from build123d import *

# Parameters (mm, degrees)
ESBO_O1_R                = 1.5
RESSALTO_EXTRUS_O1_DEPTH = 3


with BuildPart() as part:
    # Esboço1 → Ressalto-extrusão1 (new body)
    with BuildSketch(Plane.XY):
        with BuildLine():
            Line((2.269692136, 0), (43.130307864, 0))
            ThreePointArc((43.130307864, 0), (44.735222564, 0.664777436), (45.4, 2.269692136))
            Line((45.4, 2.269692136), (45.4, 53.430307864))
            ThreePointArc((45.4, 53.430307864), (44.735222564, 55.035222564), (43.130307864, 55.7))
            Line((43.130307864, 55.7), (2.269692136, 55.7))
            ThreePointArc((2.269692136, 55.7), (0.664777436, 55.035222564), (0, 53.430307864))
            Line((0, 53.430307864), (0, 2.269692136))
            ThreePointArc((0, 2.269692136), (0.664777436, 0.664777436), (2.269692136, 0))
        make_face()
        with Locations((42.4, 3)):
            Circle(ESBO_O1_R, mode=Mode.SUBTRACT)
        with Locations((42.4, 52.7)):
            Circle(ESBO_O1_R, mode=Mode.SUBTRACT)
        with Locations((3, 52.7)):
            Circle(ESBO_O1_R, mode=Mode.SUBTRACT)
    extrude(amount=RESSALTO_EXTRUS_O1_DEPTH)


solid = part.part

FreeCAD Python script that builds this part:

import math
import FreeCAD as App
import Part
import Sketcher

V = App.Vector
Q = App.Units.Quantity

doc = App.newDocument("Part")
params = doc.addObject("Spreadsheet::Sheet", "Params")
for row, (alias, value) in enumerate([
    ("sketch1_diameter", "3 mm"),
    ("pad1_length", "3 mm"),
], start=1):
    params.set(f"A{row}", alias)
    params.set(f"B{row}", "=" + value)
    params.setAlias(f"B{row}", alias)

body = doc.addObject("PartDesign::Body", "Body")

# Sketch on XY plane
sketch1 = body.newObject("Sketcher::SketchObject", "Sketch")
sketch1.AttachmentSupport = (doc.getObject("XY_Plane"), [""])
sketch1.MapMode = "FlatFace"
sketch1.addGeometry(Part.LineSegment(V(2.3, 0, 0), V(43.1, 0, 0)), False)
sketch1.addGeometry(Part.ArcOfCircle(Part.Circle(V(43.1, 2.3, 0), V(0, 0, 1), 2.3), math.radians(-90), math.radians(0)), False)
sketch1.addGeometry(Part.LineSegment(V(45.4, 2.3, 0), V(45.4, 53.4, 0)), False)
sketch1.addGeometry(Part.ArcOfCircle(Part.Circle(V(43.1, 53.4, 0), V(0, 0, 1), 2.3), math.radians(0), math.radians(90)), False)
sketch1.addGeometry(Part.LineSegment(V(43.1, 55.7, 0), V(2.3, 55.7, 0)), False)
sketch1.addGeometry(Part.ArcOfCircle(Part.Circle(V(2.3, 53.4, 0), V(0, 0, 1), 2.3), math.radians(90), math.radians(180)), False)
sketch1.addGeometry(Part.LineSegment(V(0, 53.4, 0), V(0, 2.3, 0)), False)
sketch1.addGeometry(Part.ArcOfCircle(Part.Circle(V(2.3, 2.3, 0), V(0, 0, 1), 2.3), math.radians(-180), math.radians(-90)), False)
sketch1.addGeometry(Part.Circle(V(42.4, 3, 0), V(0, 0, 1), 1.5), False)
sketch1.addGeometry(Part.Circle(V(3, 52.7, 0), V(0, 0, 1), 1.5), False)
sketch1.addGeometry(Part.Circle(V(42.4, 52.7, 0), V(0, 0, 1), 1.5), False)
sketch1.addConstraint(Sketcher.Constraint("Tangent", 0, 2, 1, 1))
sketch1.addConstraint(Sketcher.Constraint("Tangent", 1, 2, 2, 1))
sketch1.addConstraint(Sketcher.Constraint("Tangent", 2, 2, 3, 1))
sketch1.addConstraint(Sketcher.Constraint("Tangent", 3, 2, 4, 1))
sketch1.addConstraint(Sketcher.Constraint("Tangent", 4, 2, 5, 1))
sketch1.addConstraint(Sketcher.Constraint("Tangent", 5, 2, 6, 1))
sketch1.addConstraint(Sketcher.Constraint("Tangent", 6, 2, 7, 1))
sketch1.addConstraint(Sketcher.Constraint("Tangent", 7, 2, 0, 1))
sketch1.addConstraint(Sketcher.Constraint("Horizontal", 0))
sketch1.addConstraint(Sketcher.Constraint("Vertical", 2))
sketch1.addConstraint(Sketcher.Constraint("Horizontal", 4))
sketch1.addConstraint(Sketcher.Constraint("Vertical", 6))
sketch1.addConstraint(Sketcher.Constraint("Equal", 1, 3))
sketch1.addConstraint(Sketcher.Constraint("Equal", 3, 5))
sketch1.addConstraint(Sketcher.Constraint("Equal", 5, 7))
sketch1.addConstraint(Sketcher.Constraint("Equal", 8, 9))
sketch1.addConstraint(Sketcher.Constraint("Equal", 9, 10))
sketch1.addConstraint(Sketcher.Constraint("PointOnObject", 0, 2, -1))
sketch1.addConstraint(Sketcher.Constraint("PointOnObject", 5, 2, -2))
sketch1.addConstraint(Sketcher.Constraint("Horizontal", 9, 3, 10, 3))
sketch1.addConstraint(Sketcher.Constraint("Vertical", 8, 3, 10, 3))
sketch1.addConstraint(Sketcher.Constraint("Diameter", 8, Q("3 mm")))
sketch1.addConstraint(Sketcher.Constraint("DistanceY", -1, 1, 8, 3, Q("3 mm")))
sketch1.addConstraint(Sketcher.Constraint("DistanceX", -1, 1, 9, 3, Q("3 mm")))
sketch1.addConstraint(Sketcher.Constraint("DistanceX", 8, 3, 1, 2, Q("3 mm")))
sketch1.addConstraint(Sketcher.Constraint("DistanceY", 10, 3, 3, 2, Q("3 mm")))
sketch1.addConstraint(Sketcher.Constraint("DistanceX", -1, 1, 8, 3, Q("42.4 mm")))
sketch1.addConstraint(Sketcher.Constraint("DistanceY", -1, 1, 9, 3, Q("52.7 mm")))
sketch1.addConstraint(Sketcher.Constraint("Radius", 1, Q("2.269692 mm")))
sketch1.setExpression("Constraints[21]", "Params.sketch1_diameter")
pad1 = body.newObject("PartDesign::Pad", "Pad")
pad1.Profile = sketch1
pad1.setExpression("Length", "Params.pad1_length")

doc.recompute()
